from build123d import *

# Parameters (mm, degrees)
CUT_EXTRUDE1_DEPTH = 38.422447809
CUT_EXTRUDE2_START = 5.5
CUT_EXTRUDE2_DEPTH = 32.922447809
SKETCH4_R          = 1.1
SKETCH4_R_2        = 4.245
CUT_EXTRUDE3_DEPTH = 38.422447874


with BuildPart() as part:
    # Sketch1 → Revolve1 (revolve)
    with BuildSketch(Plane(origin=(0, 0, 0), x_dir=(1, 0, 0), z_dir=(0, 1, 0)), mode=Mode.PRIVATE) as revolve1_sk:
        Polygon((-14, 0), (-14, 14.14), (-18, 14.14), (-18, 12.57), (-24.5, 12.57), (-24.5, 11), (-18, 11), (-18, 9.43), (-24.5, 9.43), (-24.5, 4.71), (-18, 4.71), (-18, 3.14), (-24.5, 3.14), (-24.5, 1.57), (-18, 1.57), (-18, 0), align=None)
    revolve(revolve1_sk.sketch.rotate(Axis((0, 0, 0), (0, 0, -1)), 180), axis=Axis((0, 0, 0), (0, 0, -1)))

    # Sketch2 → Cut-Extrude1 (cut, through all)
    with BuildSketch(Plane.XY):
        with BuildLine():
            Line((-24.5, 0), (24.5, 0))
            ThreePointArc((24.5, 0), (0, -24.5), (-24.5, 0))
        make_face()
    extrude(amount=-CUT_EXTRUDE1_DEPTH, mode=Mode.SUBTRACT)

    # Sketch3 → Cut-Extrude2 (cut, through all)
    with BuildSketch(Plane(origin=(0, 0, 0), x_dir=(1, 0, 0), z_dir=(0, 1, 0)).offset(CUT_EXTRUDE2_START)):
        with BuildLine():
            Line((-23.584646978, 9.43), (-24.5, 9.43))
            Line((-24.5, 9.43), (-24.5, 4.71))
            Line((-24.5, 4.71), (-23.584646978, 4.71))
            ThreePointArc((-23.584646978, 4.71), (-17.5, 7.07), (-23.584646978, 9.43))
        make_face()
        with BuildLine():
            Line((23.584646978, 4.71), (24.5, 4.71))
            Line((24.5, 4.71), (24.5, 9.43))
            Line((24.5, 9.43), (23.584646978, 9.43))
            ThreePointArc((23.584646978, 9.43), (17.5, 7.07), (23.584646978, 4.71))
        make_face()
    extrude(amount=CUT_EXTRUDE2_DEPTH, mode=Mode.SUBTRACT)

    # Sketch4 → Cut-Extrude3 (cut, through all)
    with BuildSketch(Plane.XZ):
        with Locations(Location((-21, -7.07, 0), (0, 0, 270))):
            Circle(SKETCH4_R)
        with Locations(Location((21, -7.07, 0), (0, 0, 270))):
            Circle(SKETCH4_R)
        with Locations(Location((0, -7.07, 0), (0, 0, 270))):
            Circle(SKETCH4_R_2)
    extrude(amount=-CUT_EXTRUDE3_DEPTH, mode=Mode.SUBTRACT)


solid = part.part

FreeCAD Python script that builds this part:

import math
import FreeCAD as App
import Part
import Sketcher
from FreeCAD import Vector
Q = App.Units.Quantity

doc = App.newDocument("Part")
body = doc.addObject("PartDesign::Body", "Body")

# Sketch on XZ plane
sketch1 = body.newObject("Sketcher::SketchObject", "Sketch")
sketch1.AttachmentSupport = (doc.getObject("XZ_Plane"), [""])
sketch1.MapMode = "FlatFace"
sketch1.addGeometry(Part.LineSegment(Vector(-14, 0, 0), Vector(-14, -14.1, 0)), False)
sketch1.addGeometry(Part.LineSegment(Vector(-14, -14.1, 0), Vector(-18, -14.1, 0)), False)
sketch1.addGeometry(Part.LineSegment(Vector(-18, -14.1, 0), Vector(-18, -12.6, 0)), False)
sketch1.addGeometry(Part.LineSegment(Vector(-18, -12.6, 0), Vector(-24.5, -12.6, 0)), False)
sketch1.addGeometry(Part.LineSegment(Vector(-24.5, -12.6, 0), Vector(-24.5, -11, 0)), False)
sketch1.addGeometry(Part.LineSegment(Vector(-24.5, -11, 0), Vector(-18, -11, 0)), False)
sketch1.addGeometry(Part.LineSegment(Vector(-18, -11, 0), Vector(-18, -9.4, 0)), False)
sketch1.addGeometry(Part.LineSegment(Vector(-18, -9.4, 0), Vector(-24.5, -9.4, 0)), False)
sketch1.addGeometry(Part.LineSegment(Vector(-24.5, -9.4, 0), Vector(-24.5, -4.7, 0)), False)
sketch1.addGeometry(Part.LineSegment(Vector(-24.5, -4.7, 0), Vector(-18, -4.7, 0)), False)
sketch1.addGeometry(Part.LineSegment(Vector(-18, -4.7, 0), Vector(-18, -3.1, 0)), False)
sketch1.addGeometry(Part.LineSegment(Vector(-18, -3.1, 0), Vector(-24.5, -3.1, 0)), False)
sketch1.addGeometry(Part.LineSegment(Vector(-24.5, -3.1, 0), Vector(-24.5, -1.6, 0)), False)
sketch1.addGeometry(Part.LineSegment(Vector(-24.5, -1.6, 0), Vector(-18, -1.6, 0)), False)
sketch1.addGeometry(Part.LineSegment(Vector(-18, -1.6, 0), Vector(-18, 0, 0)), False)
sketch1.addGeometry(Part.LineSegment(Vector(-18, 0, 0), Vector(-14, 0, 0)), False)
sketch1.addConstraint(Sketcher.Constraint("Coincident", 0, 2, 1, 1))
sketch1.addConstraint(Sketcher.Constraint("Coincident", 1, 2, 2, 1))
sketch1.addConstraint(Sketcher.Constraint("Coincident", 2, 2, 3, 1))
sketch1.addConstraint(Sketcher.Constraint("Coincident", 3, 2, 4, 1))
sketch1.addConstraint(Sketcher.Constraint("Coincident", 4, 2, 5, 1))
sketch1.addConstraint(Sketcher.Constraint("Coincident", 5, 2, 6, 1))
sketch1.addConstraint(Sketcher.Constraint("Coincident", 6, 2, 7, 1))
sketch1.addConstraint(Sketcher.Constraint("Coincident", 7, 2, 8, 1))
sketch1.addConstraint(Sketcher.Constraint("Coincident", 8, 2, 9, 1))
sketch1.addConstraint(Sketcher.Constraint("Coincident", 9, 2, 10, 1))
sketch1.addConstraint(Sketcher.Constraint("Coincident", 10, 2, 11, 1))
sketch1.addConstraint(Sketcher.Constraint("Coincident", 11, 2, 12, 1))
sketch1.addConstraint(Sketcher.Constraint("Coincident", 12, 2, 13, 1))
sketch1.addConstraint(Sketcher.Constraint("Coincident", 13, 2, 14, 1))
sketch1.addConstraint(Sketcher.Constraint("Coincident", 14, 2, 15, 1))
sketch1.addConstraint(Sketcher.Constraint("Coincident", 15, 2, 0, 1))
sketch1.addConstraint(Sketcher.Constraint("Vertical", 0))
sketch1.addConstraint(Sketcher.Constraint("Horizontal", 1))
sketch1.addConstraint(Sketcher.Constraint("Vertical", 2))
sketch1.addConstraint(Sketcher.Constraint("Horizontal", 3))
sketch1.addConstraint(Sketcher.Constraint("Vertical", 4))
sketch1.addConstraint(Sketcher.Constraint("Horizontal", 5))
sketch1.addConstraint(Sketcher.Constraint("Vertical", 6))
sketch1.addConstraint(Sketcher.Constraint("Horizontal", 7))
sketch1.addConstraint(Sketcher.Constraint("Vertical", 8))
sketch1.addConstraint(Sketcher.Constraint("Horizontal", 9))
sketch1.addConstraint(Sketcher.Constraint("Vertical", 10))
sketch1.addConstraint(Sketcher.Constraint("Horizontal", 11))
sketch1.addConstraint(Sketcher.Constraint("Vertical", 12))
sketch1.addConstraint(Sketcher.Constraint("Horizontal", 13))
sketch1.addConstraint(Sketcher.Constraint("Vertical", 14))
sketch1.addConstraint(Sketcher.Constraint("Horizontal", 15))
sketch1.addConstraint(Sketcher.Constraint("PointOnObject", 14, 2, -1))
sketch1.addConstraint(Sketcher.Constraint("Vertical", 2, 2, 5, 2))
sketch1.addConstraint(Sketcher.Constraint("Vertical", 4, 2, 7, 2))
sketch1.addConstraint(Sketcher.Constraint("Vertical", 6, 2, 9, 2))
sketch1.addConstraint(Sketcher.Constraint("Vertical", 8, 2, 11, 2))
sketch1.addConstraint(Sketcher.Constraint("Vertical", 10, 2, 13, 2))
sketch1.addConstraint(Sketcher.Constraint("Equal", 2, 4))
sketch1.addConstraint(Sketcher.Constraint("Equal", 4, 6))
sketch1.addConstraint(Sketcher.Constraint("Equal", 6, 10))
sketch1.addConstraint(Sketcher.Constraint("Equal", 10, 12))
sketch1.addConstraint(Sketcher.Constraint("Equal", 12, 14))
sketch1.addConstraint(Sketcher.Constraint("DistanceX", 1, 2, 1, 1, Q("4 mm")))
sketch1.addConstraint(Sketcher.Constraint("DistanceX", 3, 2, 3, 1, Q("6.5 mm")))
sketch1.addConstraint(Sketcher.Constraint("DistanceX", 0, 2, -1, 1, Q("14 mm")))
sketch1.addConstraint(Sketcher.Constraint("DistanceY", 4, 2, -1, 1, Q("11 mm")))
sketch1.addConstraint(Sketcher.Constraint("DistanceY", 0, 2, 0, 1, Q("14.14 mm")))
revolution = body.newObject("PartDesign::Revolution", "Revolution")
revolution.Profile = sketch1
revolution.ReferenceAxis = (sketch1, ["V_Axis"])
revolution.Angle = 360

# Sketch on XY plane
sketch2 = body.newObject("Sketcher::SketchObject", "Sketch001")
sketch2.AttachmentSupport = (doc.getObject("XY_Plane"), [""])
sketch2.MapMode = "FlatFace"
sketch2.addGeometry(Part.LineSegment(Vector(24, 0, 0), Vector(-24, 0, 0)), False)
sketch2.addGeometry(Part.ArcOfCircle(Part.Circle(Vector(0, 0, 0), Vector(0, 0, 1), 24), math.radians(180), math.radians(360)), False)
sketch2.addConstraint(Sketcher.Constraint("Coincident", 0, 1, 1, 2))
sketch2.addConstraint(Sketcher.Constraint("Coincident", 1, 1, 0, 2))
sketch2.addConstraint(Sketcher.Constraint("Horizontal", 0))
sketch2.addConstraint(Sketcher.Constraint("Coincident", 1, 3, -1, 1))
sketch2.addConstraint(Sketcher.Constraint("PointOnObject", 0, 1, -1))
sketch2.addConstraint(Sketcher.Constraint("Radius", 1, Q("24.5 mm")))
pocket1 = body.newObject("PartDesign::Pocket", "Pocket")
pocket1.Profile = sketch2
pocket1.Type = "ThroughAll"

# Sketch on XZ plane
sketch3 = body.newObject("Sketcher::SketchObject", "Sketch002")
sketch3.AttachmentSupport = (doc.getObject("XZ_Plane"), [""])
sketch3.MapMode = "FlatFace"
sketch3.AttachmentOffset = App.Placement(Vector(0, 0, -5.5), App.Rotation())
sketch3.addGeometry(Part.LineSegment(Vector(-23.6, -9.4, 0), Vector(-24.5, -9.4, 0)), False)
sketch3.addGeometry(Part.LineSegment(Vector(-24.5, -9.4, 0), Vector(-24.5, -4.7, 0)), False)
sketch3.addGeometry(Part.LineSegment(Vector(-24.5, -4.7, 0), Vector(-23.6, -4.7, 0)), False)
sketch3.addGeometry(Part.ArcOfCircle(Part.Circle(Vector(-21, -7.1, 0), Vector(0, 0, 1), 3.5), math.radians(-138), math.radians(138)), False)
sketch3.addGeometry(Part.LineSegment(Vector(23.6, -4.7, 0), Vector(24.5, -4.7, 0)), False)
sketch3.addGeometry(Part.LineSegment(Vector(24.5, -4.7, 0), Vector(24.5, -9.4, 0)), False)
sketch3.addGeometry(Part.LineSegment(Vector(24.5, -9.4, 0), Vector(23.6, -9.4, 0)), False)
sketch3.addGeometry(Part.ArcOfCircle(Part.Circle(Vector(21, -7.1, 0), Vector(0, 0, 1), 3.5), math.radians(42), math.radians(318)), False)
sketch3.addConstraint(Sketcher.Constraint("Coincident", 0, 2, 1, 1))
sketch3.addConstraint(Sketcher.Constraint("Coincident", 1, 2, 2, 1))
sketch3.addConstraint(Sketcher.Constraint("Coincident", 2, 2, 3, 2))
sketch3.addConstraint(Sketcher.Constraint("Coincident", 3, 1, 0, 1))
sketch3.addConstraint(Sketcher.Constraint("Coincident", 4, 2, 5, 1))
sketch3.addConstraint(Sketcher.Constraint("Coincident", 5, 2, 6, 1))
sketch3.addConstraint(Sketcher.Constraint("Coincident", 6, 2, 7, 2))
sketch3.addConstraint(Sketcher.Constraint("Coincident", 7, 1, 4, 1))
sketch3.addConstraint(Sketcher.Constraint("Horizontal", 0))
sketch3.addConstraint(Sketcher.Constraint("Vertical", 1))
sketch3.addConstraint(Sketcher.Constraint("Horizontal", 2))
sketch3.addConstraint(Sketcher.Constraint("Horizontal", 4))
sketch3.addConstraint(Sketcher.Constraint("Vertical", 5))
sketch3.addConstraint(Sketcher.Constraint("Horizontal", 6))
sketch3.addConstraint(Sketcher.Constraint("Equal", 3, 7))
sketch3.addConstraint(Sketcher.Constraint("Symmetric", 3, 3, 7, 3, -2))
sketch3.addConstraint(Sketcher.Constraint("Symmetric", 1, 2, 4, 2, -2))
sketch3.addConstraint(Sketcher.Constraint("Horizontal", 3, 1, 5, 2))
sketch3.addConstraint(Sketcher.Constraint("Vertical", 2, 2, 3, 1))
sketch3.addConstraint(Sketcher.Constraint("Radius", 3, Q("3.5 mm")))
sketch3.addConstraint(Sketcher.Constraint("DistanceX", 3, 3, -1, 1, Q("21 mm")))
sketch3.addConstraint(Sketcher.Constraint("DistanceX", 1, 2, 4, 2, Q("49 mm")))
sketch3.addConstraint(Sketcher.Constraint("DistanceY", 1, 1, 1, 2, Q("4.72 mm")))
sketch3.addConstraint(Sketcher.Constraint("DistanceY", 3, 3, -1, 1, Q("7.07 mm")))
pocket2 = body.newObject("PartDesign::Pocket", "Pocket001")
pocket2.Profile = sketch3
pocket2.Type = "ThroughAll"

# Sketch on XZ plane
sketch4 = body.newObject("Sketcher::SketchObject", "Sketch003")
sketch4.AttachmentSupport = (doc.getObject("XZ_Plane"), [""])
sketch4.MapMode = "FlatFace"
sketch4.addGeometry(Part.Circle(Vector(-21, -7.1, 0), Vector(0, 0, 1), 1.1), False)
sketch4.addGeometry(Part.Circle(Vector(21, -7.1, 0), Vector(0, 0, 1), 1.1), False)
sketch4.addGeometry(Part.Circle(Vector(0, -7.1, 0), Vector(0, 0, 1), 4.2), False)
sketch4.addConstraint(Sketcher.Constraint("Equal", 0, 1))
sketch4.addConstraint(Sketcher.Constraint("Symmetric", 0, 3, 1, 3, -2))
sketch4.addConstraint(Sketcher.Constraint("PointOnObject", 2, 3, -2))
sketch4.addConstraint(Sketcher.Constraint("Horizontal", 1, 3, 2, 3))
sketch4.addConstraint(Sketcher.Constraint("Diameter", 0, Q("2.2 mm")))
sketch4.addConstraint(Sketcher.Constraint("Diameter", 2, Q("8.49 mm")))
sketch4.addConstraint(Sketcher.Constraint("DistanceX", 0, 3, -1, 1, Q("21 mm")))
sketch4.addConstraint(Sketcher.Constraint("DistanceY", 0, 3, -1, 1, Q("7.07 mm")))
pocket3 = body.newObject("PartDesign::Pocket", "Pocket002")
pocket3.Profile = sketch4
pocket3.Type = "ThroughAll"

doc.recompute()
